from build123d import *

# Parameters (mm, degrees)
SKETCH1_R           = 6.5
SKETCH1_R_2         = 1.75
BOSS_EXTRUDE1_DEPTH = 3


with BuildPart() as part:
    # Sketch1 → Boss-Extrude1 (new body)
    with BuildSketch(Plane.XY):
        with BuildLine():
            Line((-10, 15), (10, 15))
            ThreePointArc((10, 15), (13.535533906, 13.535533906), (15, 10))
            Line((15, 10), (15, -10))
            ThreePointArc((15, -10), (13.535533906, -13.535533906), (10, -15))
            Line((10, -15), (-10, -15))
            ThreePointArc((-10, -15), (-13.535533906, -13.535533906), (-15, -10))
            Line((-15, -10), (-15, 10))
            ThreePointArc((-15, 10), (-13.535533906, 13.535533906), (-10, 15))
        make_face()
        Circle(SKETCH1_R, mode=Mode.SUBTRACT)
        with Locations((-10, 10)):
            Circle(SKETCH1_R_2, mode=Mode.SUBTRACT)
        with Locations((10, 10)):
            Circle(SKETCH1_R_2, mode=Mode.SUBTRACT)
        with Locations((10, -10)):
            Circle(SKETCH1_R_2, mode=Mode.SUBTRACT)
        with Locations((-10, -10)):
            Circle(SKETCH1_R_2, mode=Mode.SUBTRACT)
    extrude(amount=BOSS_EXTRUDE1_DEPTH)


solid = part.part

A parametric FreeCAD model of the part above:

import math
import FreeCAD as App
import Part
import Sketcher

V = App.Vector

doc = App.newDocument("Part")
body = doc.addObject("PartDesign::Body", "Body")

# Sketch on XY plane
sketch1 = body.newObject("Sketcher::SketchObject", "Sketch")
sketch1.AttachmentSupport = (doc.getObject("XY_Plane"), [""])
sketch1.MapMode = "FlatFace"
sketch1.addGeometry([
    Part.LineSegment(V(10, 15, 0), V(-10, 15, 0)),  # 0
    Part.ArcOfCircle(Part.Circle(V(-10, 10, 0), V(0, 0, 1), 5), math.radians(90), math.radians(180)),  # 1
    Part.LineSegment(V(-15, 10, 0), V(-15, -10, 0)),  # 2
    Part.ArcOfCircle(Part.Circle(V(-10, -10, 0), V(0, 0, 1), 5), math.radians(180), math.radians(270)),  # 3
    Part.LineSegment(V(-10, -15, 0), V(10, -15, 0)),  # 4
    Part.ArcOfCircle(Part.Circle(V(10, -10, 0), V(0, 0, 1), 5), math.radians(-90), math.radians(0)),  # 5
    Part.LineSegment(V(15, -10, 0), V(15, 10, 0)),  # 6
    Part.ArcOfCircle(Part.Circle(V(10, 10, 0), V(0, 0, 1), 5), math.radians(0), math.radians(90)),  # 7
    Part.Circle(V(10, -10, 0), V(0, 0, 1), 1.8),  # 8
    Part.Circle(V(-10, -10, 0), V(0, 0, 1), 1.8),  # 9
    Part.Circle(V(10, 10, 0), V(0, 0, 1), 1.8),  # 10
    Part.Circle(V(0, 0, 0), V(0, 0, 1), 6.5),  # 11
    Part.Circle(V(-10, 10, 0), V(0, 0, 1), 1.8),  # 12
], False)
sketch1.addConstraint([
    Sketcher.Constraint("Tangent", 0, 2, 1, 1),
    Sketcher.Constraint("Tangent", 1, 2, 2, 1),
    Sketcher.Constraint("Tangent", 2, 2, 3, 1),
    Sketcher.Constraint("Tangent", 3, 2, 4, 1),
    Sketcher.Constraint("Tangent", 4, 2, 5, 1),
    Sketcher.Constraint("Tangent", 5, 2, 6, 1),
    Sketcher.Constraint("Tangent", 6, 2, 7, 1),
    Sketcher.Constraint("Tangent", 7, 2, 0, 1),
    Sketcher.Constraint("Horizontal", 0),
    Sketcher.Constraint("Vertical", 2),
    Sketcher.Constraint("Horizontal", 4),
    Sketcher.Constraint("Vertical", 6),
    Sketcher.Constraint("Coincident", 11, 3, -1, 1),
    Sketcher.Constraint("Coincident", 8, 3, 5, 3),
    Sketcher.Constraint("Coincident", 9, 3, 3, 3),
    Sketcher.Constraint("Coincident", 10, 3, 7, 3),
    Sketcher.Constraint("Coincident", 12, 3, 1, 3),
    Sketcher.Constraint("Equal", 1, 3),
    Sketcher.Constraint("Equal", 3, 5),
    Sketcher.Constraint("Equal", 5, 7),
    Sketcher.Constraint("Equal", 8, 9),
    Sketcher.Constraint("Equal", 9, 10),
    Sketcher.Constraint("Equal", 10, 12),
    Sketcher.Constraint("Symmetric", 1, 3, 5, 3, -1, 1),
    Sketcher.Constraint("Equal", 4, 2),
    Sketcher.Constraint("Diameter", 11, 13.0),
    Sketcher.Constraint("Radius", 1, 5.0),
    Sketcher.Constraint("Diameter", 8, 3.5),
    Sketcher.Constraint("DistanceX", 0, 2, 0, 1, 20.0),
])
pad1 = body.newObject("PartDesign::Pad", "Pad")
pad1.Profile = sketch1
pad1.Length = 3

doc.recompute()
